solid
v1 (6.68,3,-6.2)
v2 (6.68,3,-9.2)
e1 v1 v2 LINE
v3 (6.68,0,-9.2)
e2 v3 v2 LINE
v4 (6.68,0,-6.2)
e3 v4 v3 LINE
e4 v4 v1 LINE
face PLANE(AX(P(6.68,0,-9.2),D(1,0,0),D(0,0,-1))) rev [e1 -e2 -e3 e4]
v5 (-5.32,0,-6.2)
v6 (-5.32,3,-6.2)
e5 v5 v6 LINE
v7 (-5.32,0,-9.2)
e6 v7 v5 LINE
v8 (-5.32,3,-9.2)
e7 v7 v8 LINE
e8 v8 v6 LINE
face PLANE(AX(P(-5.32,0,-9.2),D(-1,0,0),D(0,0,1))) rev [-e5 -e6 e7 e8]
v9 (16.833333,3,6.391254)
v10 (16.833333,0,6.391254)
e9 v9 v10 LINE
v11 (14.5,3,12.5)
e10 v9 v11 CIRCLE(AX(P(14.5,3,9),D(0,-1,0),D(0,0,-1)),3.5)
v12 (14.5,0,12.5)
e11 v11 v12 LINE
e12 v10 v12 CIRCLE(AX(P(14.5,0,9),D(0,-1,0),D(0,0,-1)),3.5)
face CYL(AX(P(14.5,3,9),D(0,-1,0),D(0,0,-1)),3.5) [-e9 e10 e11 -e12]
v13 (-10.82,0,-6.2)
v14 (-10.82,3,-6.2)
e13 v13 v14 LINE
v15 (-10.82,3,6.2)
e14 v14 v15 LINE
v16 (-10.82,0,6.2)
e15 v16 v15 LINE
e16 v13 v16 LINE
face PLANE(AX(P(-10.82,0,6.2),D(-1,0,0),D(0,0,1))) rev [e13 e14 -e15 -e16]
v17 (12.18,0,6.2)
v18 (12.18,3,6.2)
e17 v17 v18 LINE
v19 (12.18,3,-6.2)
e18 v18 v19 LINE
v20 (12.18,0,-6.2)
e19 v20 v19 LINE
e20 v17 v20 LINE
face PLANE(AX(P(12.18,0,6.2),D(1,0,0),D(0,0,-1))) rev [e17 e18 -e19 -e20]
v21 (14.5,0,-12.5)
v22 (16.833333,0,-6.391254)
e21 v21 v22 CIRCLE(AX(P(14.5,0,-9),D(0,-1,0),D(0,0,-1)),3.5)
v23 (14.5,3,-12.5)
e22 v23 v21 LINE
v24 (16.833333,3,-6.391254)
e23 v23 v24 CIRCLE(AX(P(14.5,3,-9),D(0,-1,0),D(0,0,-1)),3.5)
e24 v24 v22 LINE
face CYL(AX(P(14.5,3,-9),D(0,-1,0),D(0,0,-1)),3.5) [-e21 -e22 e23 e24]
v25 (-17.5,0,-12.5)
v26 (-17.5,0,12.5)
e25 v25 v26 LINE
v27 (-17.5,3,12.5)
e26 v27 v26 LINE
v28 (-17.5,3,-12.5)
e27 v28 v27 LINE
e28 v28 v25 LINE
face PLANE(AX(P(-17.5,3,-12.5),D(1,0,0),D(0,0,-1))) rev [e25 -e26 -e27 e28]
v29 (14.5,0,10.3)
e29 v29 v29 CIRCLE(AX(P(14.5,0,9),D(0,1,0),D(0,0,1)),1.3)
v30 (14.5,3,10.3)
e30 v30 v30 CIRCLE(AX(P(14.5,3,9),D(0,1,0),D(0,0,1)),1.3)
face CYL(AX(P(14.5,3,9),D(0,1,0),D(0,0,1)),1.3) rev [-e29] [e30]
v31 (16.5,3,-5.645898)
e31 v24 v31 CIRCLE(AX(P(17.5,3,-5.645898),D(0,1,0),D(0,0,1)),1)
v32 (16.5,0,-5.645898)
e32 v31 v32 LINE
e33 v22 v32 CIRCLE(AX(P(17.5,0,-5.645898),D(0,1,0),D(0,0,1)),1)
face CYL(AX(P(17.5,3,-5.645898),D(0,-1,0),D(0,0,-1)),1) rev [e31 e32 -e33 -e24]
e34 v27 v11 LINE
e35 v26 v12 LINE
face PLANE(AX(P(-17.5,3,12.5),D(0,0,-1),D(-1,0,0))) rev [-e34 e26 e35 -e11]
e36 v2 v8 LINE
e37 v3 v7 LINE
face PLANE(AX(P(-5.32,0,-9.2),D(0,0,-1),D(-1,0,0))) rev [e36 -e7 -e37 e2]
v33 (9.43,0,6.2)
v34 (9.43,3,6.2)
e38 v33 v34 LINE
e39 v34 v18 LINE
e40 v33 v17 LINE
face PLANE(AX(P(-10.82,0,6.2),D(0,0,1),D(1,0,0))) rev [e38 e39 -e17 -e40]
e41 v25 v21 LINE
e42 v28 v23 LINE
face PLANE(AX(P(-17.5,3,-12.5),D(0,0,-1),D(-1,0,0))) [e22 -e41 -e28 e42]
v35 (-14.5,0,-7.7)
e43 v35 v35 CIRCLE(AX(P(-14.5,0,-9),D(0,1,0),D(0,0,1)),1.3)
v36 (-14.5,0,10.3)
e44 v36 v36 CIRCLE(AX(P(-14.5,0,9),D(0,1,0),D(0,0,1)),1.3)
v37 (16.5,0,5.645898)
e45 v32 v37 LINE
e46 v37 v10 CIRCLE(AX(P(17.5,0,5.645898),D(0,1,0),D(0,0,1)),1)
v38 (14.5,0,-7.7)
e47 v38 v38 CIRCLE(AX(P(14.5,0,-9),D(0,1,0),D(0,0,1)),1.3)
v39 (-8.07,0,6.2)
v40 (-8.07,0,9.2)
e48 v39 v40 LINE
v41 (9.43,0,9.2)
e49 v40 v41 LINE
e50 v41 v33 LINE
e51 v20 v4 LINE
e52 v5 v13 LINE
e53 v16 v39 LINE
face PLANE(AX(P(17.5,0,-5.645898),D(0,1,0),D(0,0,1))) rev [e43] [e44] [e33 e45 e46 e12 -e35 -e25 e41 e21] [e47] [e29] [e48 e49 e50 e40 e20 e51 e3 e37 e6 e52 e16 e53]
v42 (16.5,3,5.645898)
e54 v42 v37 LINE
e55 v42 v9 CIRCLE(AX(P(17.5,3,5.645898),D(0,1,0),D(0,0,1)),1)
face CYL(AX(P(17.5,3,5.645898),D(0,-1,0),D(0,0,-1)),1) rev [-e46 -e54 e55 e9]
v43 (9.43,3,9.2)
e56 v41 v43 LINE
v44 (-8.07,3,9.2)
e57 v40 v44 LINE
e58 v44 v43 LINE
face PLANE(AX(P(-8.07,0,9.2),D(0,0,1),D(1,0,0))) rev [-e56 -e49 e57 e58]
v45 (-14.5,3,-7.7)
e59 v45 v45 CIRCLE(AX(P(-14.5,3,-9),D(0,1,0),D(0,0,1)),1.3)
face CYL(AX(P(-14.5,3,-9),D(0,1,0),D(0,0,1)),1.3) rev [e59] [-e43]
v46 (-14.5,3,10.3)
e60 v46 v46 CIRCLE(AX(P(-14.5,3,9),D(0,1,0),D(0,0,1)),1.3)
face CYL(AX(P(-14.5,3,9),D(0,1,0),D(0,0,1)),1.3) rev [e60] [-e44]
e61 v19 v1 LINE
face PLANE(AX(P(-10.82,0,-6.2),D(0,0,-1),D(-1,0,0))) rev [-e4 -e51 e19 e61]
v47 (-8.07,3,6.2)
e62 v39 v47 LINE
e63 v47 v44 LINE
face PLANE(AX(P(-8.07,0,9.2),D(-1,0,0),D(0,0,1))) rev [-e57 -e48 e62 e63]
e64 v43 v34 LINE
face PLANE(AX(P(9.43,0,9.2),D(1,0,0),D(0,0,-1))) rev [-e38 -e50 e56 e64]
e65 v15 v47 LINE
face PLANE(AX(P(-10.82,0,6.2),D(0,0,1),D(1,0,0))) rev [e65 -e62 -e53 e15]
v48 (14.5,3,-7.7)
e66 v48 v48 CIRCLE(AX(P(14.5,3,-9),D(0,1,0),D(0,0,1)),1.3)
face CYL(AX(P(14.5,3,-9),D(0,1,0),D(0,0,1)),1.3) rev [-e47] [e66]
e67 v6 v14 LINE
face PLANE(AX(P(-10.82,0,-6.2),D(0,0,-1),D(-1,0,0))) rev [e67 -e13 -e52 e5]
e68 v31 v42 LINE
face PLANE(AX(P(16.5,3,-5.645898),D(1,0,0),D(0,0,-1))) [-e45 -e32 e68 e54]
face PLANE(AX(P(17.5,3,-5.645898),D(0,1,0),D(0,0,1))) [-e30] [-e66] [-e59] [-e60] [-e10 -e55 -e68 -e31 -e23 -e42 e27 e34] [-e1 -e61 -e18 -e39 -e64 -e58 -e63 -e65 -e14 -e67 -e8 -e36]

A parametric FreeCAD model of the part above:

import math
import FreeCAD as App
import Part
import Sketcher

V = App.Vector

doc = App.newDocument("Part")
params = doc.addObject("Spreadsheet::Sheet", "Params")
for row, (alias, value) in enumerate([
    ("sketch1_radius", "1 mm"),
    ("sketch1_radius2", "3.5 mm"),
    ("sketch1_width", "32 mm"),
    ("sketch1_height", "25 mm"),
    ("pad1_length", "3 mm"),
    ("sketch2_width", "23 mm"),
    ("sketch2_height", "12.4 mm"),
    ("sketch3_width", "12 mm"),
    ("sketch3_height", "3 mm"),
    ("sketch3_width2", "17.5 mm"),
    ("sketch4_diameter", "2.6 mm"),
    ("hole_diameter", "2.6 mm"),
], start=1):
    params.set(f"A{row}", alias)
    params.set(f"B{row}", "=" + value)
    params.setAlias(f"B{row}", alias)

body = doc.addObject("PartDesign::Body", "Body")

sketch1 = body.newObject("Sketcher::SketchObject", "Sketch")
sketch1.AttachmentSupport = (doc.getObject("XZ_Plane"), [""])
sketch1.MapMode = "FlatFace"
sketch1.addGeometry([
    Part.LineSegment(V(14.5, -12.5, 0), V(-17.5, -12.5, 0)),
    Part.LineSegment(V(-17.5, -12.5, 0), V(-17.5, 12.5, 0)),
    Part.LineSegment(V(-17.5, 12.5, 0), V(14.5, 12.5, 0)),
    Part.ArcOfCircle(Part.Circle(V(14.5, 9, 0), V(0, 0, 1), 3.5), math.radians(-48), math.radians(90)),
    Part.ArcOfCircle(Part.Circle(V(17.5, 5.6, 0), V(0, 0, 1), 1), math.radians(132), math.radians(180)),
    Part.LineSegment(V(16.5, 5.6, 0), V(16.5, -5.6, 0)),
    Part.ArcOfCircle(Part.Circle(V(17.5, -5.6, 0), V(0, 0, 1), 1), math.radians(-180), math.radians(-132)),
    Part.ArcOfCircle(Part.Circle(V(14.5, -9, 0), V(0, 0, 1), 3.5), math.radians(-90), math.radians(48)),
], False)
sketch1.addConstraint([
    Sketcher.Constraint("Coincident", 0, 2, 1, 1),
    Sketcher.Constraint("Coincident", 1, 2, 2, 1),
    Sketcher.Constraint("Tangent", 2, 2, 3, 2),
    Sketcher.Constraint("Tangent", 3, 1, 4, 1),
    Sketcher.Constraint("Tangent", 4, 2, 5, 1),
    Sketcher.Constraint("Tangent", 5, 2, 6, 1),
    Sketcher.Constraint("Tangent", 6, 2, 7, 2),
    Sketcher.Constraint("Tangent", 7, 1, 0, 1),
    Sketcher.Constraint("Horizontal", 0),
    Sketcher.Constraint("Vertical", 1),
    Sketcher.Constraint("Horizontal", 2),
    Sketcher.Constraint("Vertical", 5),
    Sketcher.Constraint("Equal", 4, 6),
    Sketcher.Constraint("Equal", 3, 7),
    Sketcher.Constraint("Symmetric", 3, 3, 7, 3, -1),
    Sketcher.Constraint("Radius", 4, 1.0),
    Sketcher.Constraint("Radius", 3, 3.5),
    Sketcher.Constraint("DistanceX", 0, 2, 0, 1, 32.0),
    Sketcher.Constraint("DistanceY", 1, 1, 1, 2, 25.0),
    Sketcher.Constraint("DistanceX", 3, 3, 4, 3, 3.0),
    Sketcher.Constraint("DistanceX", -1, 1, 3, 3, 14.5),
])
sketch1.setExpression("Constraints[15]", "Params.sketch1_radius")
sketch1.setExpression("Constraints[16]", "Params.sketch1_radius2")
sketch1.setExpression("Constraints[17]", "Params.sketch1_width")
sketch1.setExpression("Constraints[18]", "Params.sketch1_height")
pad1 = body.newObject("PartDesign::Pad", "Pad")
pad1.Profile = sketch1
pad1.setExpression("Length", "Params.pad1_length")
pad1.Reversed = True

sketch2 = body.newObject("Sketcher::SketchObject", "Sketch001")
sketch2.AttachmentSupport = (doc.getObject("XZ_Plane"), [""])
sketch2.MapMode = "FlatFace"
sketch2.AttachmentOffset = App.Placement(V(0, 0, -3), App.Rotation())
sketch2.addGeometry([
    Part.LineSegment(V(-11, -6, 0), V(-11, 6, 0)),
    Part.LineSegment(V(-11, 6, 0), V(12, 6, 0)),
    Part.LineSegment(V(12, 6, 0), V(12, -6, 0)),
    Part.LineSegment(V(12, -6, 0), V(-11, -6, 0)),
], False)
sketch2.addConstraint([
    Sketcher.Constraint("Coincident", 0, 2, 1, 1),
    Sketcher.Constraint("Coincident", 1, 2, 2, 1),
    Sketcher.Constraint("Coincident", 2, 2, 3, 1),
    Sketcher.Constraint("Coincident", 3, 2, 0, 1),
    Sketcher.Constraint("Vertical", 0),
    Sketcher.Constraint("Horizontal", 1),
    Sketcher.Constraint("Vertical", 2),
    Sketcher.Constraint("Horizontal", 3),
    Sketcher.Constraint("DistanceX", 1, 1, 1, 2, 23.0),
    Sketcher.Constraint("DistanceY", 0, 1, 0, 2, 12.4),
    Sketcher.Constraint("DistanceY", -1, 1, 0, 2, 6.2),
    Sketcher.Constraint("DistanceX", 0, 2, -1, 1, 10.82),
])
sketch2.setExpression("Constraints[8]", "Params.sketch2_width")
sketch2.setExpression("Constraints[9]", "Params.sketch2_height")
pocket1 = body.newObject("PartDesign::Pocket", "Pocket")
pocket1.Profile = sketch2
pocket1.Type = "ThroughAll"
pocket1.Reversed = True

sketch3 = body.newObject("Sketcher::SketchObject", "Sketch002")
sketch3.AttachmentSupport = (doc.getObject("XZ_Plane"), [""])
sketch3.MapMode = "FlatFace"
sketch3.AttachmentOffset = App.Placement(V(0, 0, -3), App.Rotation())
sketch3.addGeometry([
    Part.LineSegment(V(-5.3, -9.2, 0), V(-5.3, -6.2, 0)),
    Part.LineSegment(V(-5.3, -6.2, 0), V(6.7, -6.2, 0)),
    Part.LineSegment(V(6.7, -6.2, 0), V(6.7, -9.2, 0)),
    Part.LineSegment(V(6.7, -9.2, 0), V(-5.3, -9.2, 0)),
    Part.LineSegment(V(-8.1, 6.2, 0), V(-8.1, 9.2, 0)),
    Part.LineSegment(V(-8.1, 9.2, 0), V(9.4, 9.2, 0)),
    Part.LineSegment(V(9.4, 9.2, 0), V(9.4, 6.2, 0)),
    Part.LineSegment(V(9.4, 6.2, 0), V(-8.1, 6.2, 0)),
], False)
sketch3.addConstraint([
    Sketcher.Constraint("Coincident", 0, 2, 1, 1),
    Sketcher.Constraint("Coincident", 1, 2, 2, 1),
    Sketcher.Constraint("Coincident", 2, 2, 3, 1),
    Sketcher.Constraint("Coincident", 3, 2, 0, 1),
    Sketcher.Constraint("Coincident", 4, 2, 5, 1),
    Sketcher.Constraint("Coincident", 5, 2, 6, 1),
    Sketcher.Constraint("Coincident", 6, 2, 7, 1),
    Sketcher.Constraint("Coincident", 7, 2, 4, 1),
    Sketcher.Constraint("Vertical", 0),
    Sketcher.Constraint("Horizontal", 1),
    Sketcher.Constraint("Vertical", 2),
    Sketcher.Constraint("Horizontal", 3),
    Sketcher.Constraint("Vertical", 4),
    Sketcher.Constraint("Horizontal", 5),
    Sketcher.Constraint("Vertical", 6),
    Sketcher.Constraint("Horizontal", 7),
    Sketcher.Constraint("Equal", 2, 4),
    Sketcher.Constraint("DistanceX", 1, 1, 1, 2, 12.0),
    Sketcher.Constraint("DistanceY", 0, 1, 0, 2, 3.0),
    Sketcher.Constraint("DistanceX", 5, 1, 5, 2, 17.5),
    Sketcher.Constraint("DistanceY", 0, 2, -1, 1, 6.2),
    Sketcher.Constraint("DistanceY", -1, 1, 4, 2, 9.2),
    Sketcher.Constraint("DistanceX", 0, 2, -1, 1, 5.32),
    Sketcher.Constraint("DistanceX", 4, 2, -1, 1, 8.07),
])
sketch3.setExpression("Constraints[17]", "Params.sketch3_width")
sketch3.setExpression("Constraints[18]", "Params.sketch3_height")
sketch3.setExpression("Constraints[19]", "Params.sketch3_width2")
pocket2 = body.newObject("PartDesign::Pocket", "Pocket001")
pocket2.Profile = sketch3
pocket2.Type = "ThroughAll"
pocket2.Reversed = True

sketch4 = body.newObject("Sketcher::SketchObject", "Sketch003")
sketch4.AttachmentSupport = (doc.getObject("XZ_Plane"), [""])
sketch4.MapMode = "FlatFace"
sketch4.AttachmentOffset = App.Placement(V(0, 0, -3), App.Rotation())
sketch4.addGeometry([
    Part.Circle(V(-14.5, -9, 0), V(0, 0, 1), 1.3),
    Part.Circle(V(-14.5, 9, 0), V(0, 0, 1), 1.3),
    Part.Circle(V(14.5, -9, 0), V(0, 0, 1), 1.3),
    Part.Circle(V(14.5, 9, 0), V(0, 0, 1), 1.3),
], False)
sketch4.addConstraint([
    Sketcher.Constraint("Equal", 0, 1),
    Sketcher.Constraint("Equal", 1, 2),
    Sketcher.Constraint("Equal", 2, 3),
    Sketcher.Constraint("Symmetric", 1, 3, 2, 3, -1, 1),
    Sketcher.Constraint("Symmetric", 0, 3, 3, 3, -1, 1),
    Sketcher.Constraint("Symmetric", 0, 3, 2, 3, -2),
    Sketcher.Constraint("Diameter", 0, 2.6),
    Sketcher.Constraint("DistanceY", 0, 3, -1, 1, 9.0),
    Sketcher.Constraint("DistanceX", 0, 3, 2, 3, 29.0),
])
sketch4.setExpression("Constraints[6]", "Params.sketch4_diameter")
doc.recompute()
hole = body.newObject("PartDesign::Hole", "Hole")
hole.Profile = sketch4
hole.ThreadType = "None"
hole.setExpression("Diameter", "Params.hole_diameter")
hole.DepthType = "ThroughAll"
hole.Reversed = True

doc.recompute()
